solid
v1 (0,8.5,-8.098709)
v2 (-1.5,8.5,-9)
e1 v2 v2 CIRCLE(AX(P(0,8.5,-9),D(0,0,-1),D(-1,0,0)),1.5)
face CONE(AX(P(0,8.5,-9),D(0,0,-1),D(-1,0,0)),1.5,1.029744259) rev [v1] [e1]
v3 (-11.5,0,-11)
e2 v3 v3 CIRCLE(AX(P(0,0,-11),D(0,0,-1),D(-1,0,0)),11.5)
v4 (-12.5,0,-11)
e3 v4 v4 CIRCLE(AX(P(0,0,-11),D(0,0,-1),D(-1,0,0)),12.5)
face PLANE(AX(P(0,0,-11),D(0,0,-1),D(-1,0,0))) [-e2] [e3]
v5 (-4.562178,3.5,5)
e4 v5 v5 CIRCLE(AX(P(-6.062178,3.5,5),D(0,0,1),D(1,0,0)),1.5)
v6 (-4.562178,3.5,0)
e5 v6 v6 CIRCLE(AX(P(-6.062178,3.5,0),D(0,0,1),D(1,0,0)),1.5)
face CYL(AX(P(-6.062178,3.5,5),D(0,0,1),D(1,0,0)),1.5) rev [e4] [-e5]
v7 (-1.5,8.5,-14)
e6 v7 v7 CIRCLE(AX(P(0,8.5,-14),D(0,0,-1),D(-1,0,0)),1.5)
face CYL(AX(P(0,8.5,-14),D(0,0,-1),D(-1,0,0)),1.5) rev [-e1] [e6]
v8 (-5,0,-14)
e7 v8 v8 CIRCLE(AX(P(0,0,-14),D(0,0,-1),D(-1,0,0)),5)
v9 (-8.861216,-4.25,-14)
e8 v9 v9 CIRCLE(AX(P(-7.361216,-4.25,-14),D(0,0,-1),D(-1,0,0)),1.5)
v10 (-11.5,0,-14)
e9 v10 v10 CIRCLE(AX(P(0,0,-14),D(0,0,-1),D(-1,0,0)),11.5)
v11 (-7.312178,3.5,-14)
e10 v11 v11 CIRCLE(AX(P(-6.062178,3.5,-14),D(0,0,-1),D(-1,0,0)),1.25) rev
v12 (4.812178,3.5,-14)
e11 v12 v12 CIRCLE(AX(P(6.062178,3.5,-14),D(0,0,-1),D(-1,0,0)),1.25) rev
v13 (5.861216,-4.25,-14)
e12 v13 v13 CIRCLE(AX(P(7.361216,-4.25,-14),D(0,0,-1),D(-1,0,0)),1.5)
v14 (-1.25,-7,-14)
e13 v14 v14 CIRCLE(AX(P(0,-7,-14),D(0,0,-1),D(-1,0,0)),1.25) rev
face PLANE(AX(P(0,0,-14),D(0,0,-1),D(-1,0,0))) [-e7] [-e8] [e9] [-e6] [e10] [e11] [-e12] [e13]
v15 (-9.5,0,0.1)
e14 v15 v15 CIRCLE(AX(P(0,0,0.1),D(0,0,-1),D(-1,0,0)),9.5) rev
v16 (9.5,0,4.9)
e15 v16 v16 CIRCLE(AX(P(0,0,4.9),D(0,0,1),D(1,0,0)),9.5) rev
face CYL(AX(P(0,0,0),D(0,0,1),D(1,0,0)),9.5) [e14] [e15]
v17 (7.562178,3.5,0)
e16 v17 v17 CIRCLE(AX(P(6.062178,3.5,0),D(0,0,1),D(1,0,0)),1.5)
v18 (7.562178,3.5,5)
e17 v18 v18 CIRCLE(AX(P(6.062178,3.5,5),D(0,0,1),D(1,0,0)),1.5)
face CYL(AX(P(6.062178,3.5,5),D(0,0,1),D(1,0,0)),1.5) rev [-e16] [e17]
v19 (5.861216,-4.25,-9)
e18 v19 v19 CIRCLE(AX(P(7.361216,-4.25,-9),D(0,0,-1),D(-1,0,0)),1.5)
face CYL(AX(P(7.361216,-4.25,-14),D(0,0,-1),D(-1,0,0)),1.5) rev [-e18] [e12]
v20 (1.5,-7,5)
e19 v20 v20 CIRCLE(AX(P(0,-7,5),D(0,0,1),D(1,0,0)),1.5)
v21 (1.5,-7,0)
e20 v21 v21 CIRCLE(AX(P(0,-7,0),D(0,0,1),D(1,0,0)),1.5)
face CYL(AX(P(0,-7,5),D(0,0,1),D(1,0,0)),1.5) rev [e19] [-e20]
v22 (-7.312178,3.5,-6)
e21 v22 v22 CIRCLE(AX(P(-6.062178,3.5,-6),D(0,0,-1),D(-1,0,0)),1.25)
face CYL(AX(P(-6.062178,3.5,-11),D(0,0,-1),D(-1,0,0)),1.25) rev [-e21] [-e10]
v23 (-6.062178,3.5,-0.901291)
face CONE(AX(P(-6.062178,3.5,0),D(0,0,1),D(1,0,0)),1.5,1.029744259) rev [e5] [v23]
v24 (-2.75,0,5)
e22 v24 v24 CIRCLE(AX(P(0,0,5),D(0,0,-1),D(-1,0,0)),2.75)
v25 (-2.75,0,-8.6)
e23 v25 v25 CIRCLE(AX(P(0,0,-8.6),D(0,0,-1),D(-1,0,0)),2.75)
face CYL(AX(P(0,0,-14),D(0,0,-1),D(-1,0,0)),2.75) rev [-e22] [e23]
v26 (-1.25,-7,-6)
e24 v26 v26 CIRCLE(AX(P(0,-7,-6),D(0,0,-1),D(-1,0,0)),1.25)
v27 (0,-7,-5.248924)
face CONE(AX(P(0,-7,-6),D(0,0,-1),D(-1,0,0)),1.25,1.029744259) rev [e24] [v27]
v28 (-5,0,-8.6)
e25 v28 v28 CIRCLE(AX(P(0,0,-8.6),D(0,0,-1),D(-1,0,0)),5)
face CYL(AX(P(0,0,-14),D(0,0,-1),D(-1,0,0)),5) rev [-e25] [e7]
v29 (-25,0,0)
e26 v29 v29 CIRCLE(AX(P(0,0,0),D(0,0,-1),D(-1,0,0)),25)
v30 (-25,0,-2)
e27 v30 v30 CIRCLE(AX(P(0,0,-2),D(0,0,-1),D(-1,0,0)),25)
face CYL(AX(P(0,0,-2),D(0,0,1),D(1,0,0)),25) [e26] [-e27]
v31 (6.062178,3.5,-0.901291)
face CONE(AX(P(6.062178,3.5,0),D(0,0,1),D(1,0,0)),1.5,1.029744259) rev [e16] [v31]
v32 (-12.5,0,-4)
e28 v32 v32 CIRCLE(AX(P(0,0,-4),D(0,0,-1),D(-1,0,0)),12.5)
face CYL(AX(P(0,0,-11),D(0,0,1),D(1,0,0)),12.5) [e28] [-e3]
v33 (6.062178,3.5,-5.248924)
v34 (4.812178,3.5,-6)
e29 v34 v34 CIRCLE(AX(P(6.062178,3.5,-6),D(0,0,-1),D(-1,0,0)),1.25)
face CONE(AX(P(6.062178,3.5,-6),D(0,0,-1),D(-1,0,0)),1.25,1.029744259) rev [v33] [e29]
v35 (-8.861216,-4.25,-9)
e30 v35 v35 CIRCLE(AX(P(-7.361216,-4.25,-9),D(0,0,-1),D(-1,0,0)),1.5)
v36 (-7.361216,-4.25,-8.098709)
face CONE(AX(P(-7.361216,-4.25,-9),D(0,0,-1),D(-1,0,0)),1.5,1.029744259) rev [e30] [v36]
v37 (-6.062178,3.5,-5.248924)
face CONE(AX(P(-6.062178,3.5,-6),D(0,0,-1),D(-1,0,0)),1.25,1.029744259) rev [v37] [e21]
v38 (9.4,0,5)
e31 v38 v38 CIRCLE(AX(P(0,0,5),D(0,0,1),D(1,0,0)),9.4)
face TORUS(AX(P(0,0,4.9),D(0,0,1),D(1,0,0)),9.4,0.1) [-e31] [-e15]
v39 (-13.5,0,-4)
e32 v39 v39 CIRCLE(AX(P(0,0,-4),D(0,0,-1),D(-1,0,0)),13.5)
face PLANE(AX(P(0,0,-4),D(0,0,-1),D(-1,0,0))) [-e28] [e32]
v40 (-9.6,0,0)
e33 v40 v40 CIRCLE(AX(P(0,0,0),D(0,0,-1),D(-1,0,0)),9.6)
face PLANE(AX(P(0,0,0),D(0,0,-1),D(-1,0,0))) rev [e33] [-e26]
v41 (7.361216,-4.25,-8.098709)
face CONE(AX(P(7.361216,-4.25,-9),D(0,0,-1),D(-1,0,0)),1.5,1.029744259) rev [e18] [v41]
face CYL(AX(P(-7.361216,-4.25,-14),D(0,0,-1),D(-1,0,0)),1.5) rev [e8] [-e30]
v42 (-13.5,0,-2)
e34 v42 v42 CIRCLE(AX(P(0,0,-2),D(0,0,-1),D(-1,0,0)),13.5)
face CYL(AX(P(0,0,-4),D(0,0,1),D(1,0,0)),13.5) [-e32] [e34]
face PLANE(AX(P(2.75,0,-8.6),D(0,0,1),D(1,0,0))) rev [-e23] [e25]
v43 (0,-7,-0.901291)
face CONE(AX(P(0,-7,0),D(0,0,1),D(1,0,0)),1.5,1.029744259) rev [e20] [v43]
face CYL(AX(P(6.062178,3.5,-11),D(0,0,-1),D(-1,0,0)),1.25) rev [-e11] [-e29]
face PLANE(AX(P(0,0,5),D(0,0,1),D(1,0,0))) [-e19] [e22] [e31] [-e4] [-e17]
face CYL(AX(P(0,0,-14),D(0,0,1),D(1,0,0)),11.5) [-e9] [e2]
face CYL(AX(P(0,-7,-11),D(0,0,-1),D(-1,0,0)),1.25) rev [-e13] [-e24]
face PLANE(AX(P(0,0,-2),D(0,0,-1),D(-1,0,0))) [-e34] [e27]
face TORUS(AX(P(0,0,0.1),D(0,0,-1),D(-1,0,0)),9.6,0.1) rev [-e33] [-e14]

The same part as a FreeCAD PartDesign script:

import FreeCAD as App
import Part
import Sketcher

V = App.Vector
Q = App.Units.Quantity


def edges_at(feature, points):
    """Names of the edges that pass closest to the given points."""
    edges = feature.Shape.Edges
    near = lambda p: min(range(len(edges)), key=lambda i: edges[i].distToShape(Part.Vertex(*p))[0])
    return sorted({f"Edge{near(p) + 1}" for p in points})


def add_polygon(sketch, points):
    """Adds a closed chain of lines whose ends are joined by coincident constraints."""
    first, n = sketch.GeometryCount, len(points)
    for a, b in zip(points, points[1:] + points[:1]):
        sketch.addGeometry(Part.LineSegment(App.Vector(*a, 0), App.Vector(*b, 0)), False)
    for i in range(n):
        sketch.addConstraint(Sketcher.Constraint("Coincident", first + i, 2, first + (i + 1) % n, 1))

doc = App.newDocument("Part")
body = doc.addObject("PartDesign::Body", "Body")

# Sketch on XY plane
sketch1 = body.newObject("Sketcher::SketchObject", "Sketch")
sketch1.AttachmentSupport = (doc.getObject("XY_Plane"), [""])
sketch1.MapMode = "FlatFace"
sketch1.addGeometry([
    Part.Circle(V(0, 0, 0), V(0, 0, 1), 25),
    Part.Circle(V(0, 0, 0), V(0, 0, 1), 10),
], False)
sketch1.addConstraint([
    Sketcher.Constraint("Coincident", 0, 3, -1, 1),
    Sketcher.Constraint("Coincident", 1, 3, -1, 1),
    Sketcher.Constraint("Diameter", 0, 50.0),
    Sketcher.Constraint("Diameter", 1, 20.0),
])
pad1 = body.newObject("PartDesign::Pad", "Pad")
pad1.Profile = sketch1
pad1.Length = 2
pad1.Reversed = True

# Sketch on XY plane
sketch2 = body.newObject("Sketcher::SketchObject", "Sketch001")
sketch2.AttachmentSupport = (doc.getObject("XY_Plane"), [""])
sketch2.MapMode = "FlatFace"
sketch2.AttachmentOffset = App.Placement(V(0, 0, -2), App.Rotation())
sketch2.addGeometry(Part.Circle(V(0, 0, 0), V(0, 0, 1), 14), False)
sketch2.addConstraint([
    Sketcher.Constraint("Coincident", 0, 3, -1, 1),
    Sketcher.Constraint("Diameter", 0, 27.0),
])
pad2 = body.newObject("PartDesign::Pad", "Pad001")
pad2.Profile = sketch2
pad2.Length = 2
pad2.Reversed = True

# Sketch on XY plane
sketch3 = body.newObject("Sketcher::SketchObject", "Sketch002")
sketch3.AttachmentSupport = (doc.getObject("XY_Plane"), [""])
sketch3.MapMode = "FlatFace"
sketch3.AttachmentOffset = App.Placement(V(0, 0, -4), App.Rotation())
sketch3.addGeometry(Part.Circle(V(0, 0, 0), V(0, 0, 1), 12), False)
sketch3.addConstraint([
    Sketcher.Constraint("Coincident", 0, 3, -1, 1),
    Sketcher.Constraint("Diameter", 0, 25.0),
])
pad3 = body.newObject("PartDesign::Pad", "Pad002")
pad3.Profile = sketch3
pad3.Length = 7
pad3.Reversed = True

# Sketch on XY plane
sketch4 = body.newObject("Sketcher::SketchObject", "Sketch003")
sketch4.AttachmentSupport = (doc.getObject("XY_Plane"), [""])
sketch4.MapMode = "FlatFace"
sketch4.AttachmentOffset = App.Placement(V(0, 0, -11), App.Rotation())
sketch4.addGeometry(Part.Circle(V(0, 4, 0), V(0, 0, 1), 1.7), False)
sketch4.addConstraint([
    Sketcher.Constraint("PointOnObject", 0, 3, -2),
    Sketcher.Constraint("Diameter", 0, 3.4),
    Sketcher.Constraint("DistanceY", -1, 1, 0, 3, 4.0),
])
doc.recompute()
hole = body.newObject("PartDesign::Hole", "Hole")
hole.Profile = sketch4
hole.ThreadType = "None"
hole.Diameter = 3.4
hole.DepthType = "ThroughAll"
hole.HoleCutType = "Counterbore"
hole.HoleCutDiameter = 6.5
hole.HoleCutDepth = 3.4
hole.Reversed = True
doc.recompute()

polarpattern = body.newObject("PartDesign::PolarPattern", "PolarPattern")
polarpattern.Originals = [hole]
polarpattern.Axis = (doc.getObject("Z_Axis"), [""])
polarpattern.Angle = 360
polarpattern.Occurrences = 3
body.Tip = polarpattern

# Sketch on YZ plane
sketch5 = body.newObject("Sketcher::SketchObject", "Sketch004")
sketch5.AttachmentSupport = (doc.getObject("YZ_Plane"), [""])
sketch5.MapMode = "FlatFace"
add_polygon(sketch5, [(-7, -5.2), (-7, -11), (-5.8, -11), (-5.8, -6)])  # lines 0-3
sketch5.addGeometry(Part.LineSegment(V(-7, -11, 0), V(-7, -5.2, 0)), True)  # axis
sketch5.addConstraint([
    Sketcher.Constraint("Vertical", 0),
    Sketcher.Constraint("Horizontal", 1),
    Sketcher.Constraint("Vertical", 2),
    Sketcher.Constraint("Vertical", 4),
    Sketcher.Constraint("Coincident", 4, 1, 0, 2),
    Sketcher.Constraint("Equal", 0, 4),
    Sketcher.Constraint("DistanceY", 2, 1, 2, 2, 5.0),
    Sketcher.Constraint("Angle", 3, Q("149 deg")),
    Sketcher.Constraint("DistanceX", 0, 2, -1, 1, 7.0),
    Sketcher.Constraint("DistanceY", 0, 2, -1, 1, 11.0),
    Sketcher.Constraint("DistanceX", 1, 1, 1, 2, 1.25),
])
groove = body.newObject("PartDesign::Groove", "Groove")
groove.Profile = sketch5
groove.ReferenceAxis = (sketch5, ["Axis0"])
groove.Angle = 360
doc.recompute()

polarpattern2 = body.newObject("PartDesign::PolarPattern", "PolarPattern001")
polarpattern2.Originals = [groove]
polarpattern2.Axis = (doc.getObject("Z_Axis"), [""])
polarpattern2.Angle = 360
polarpattern2.Occurrences = 3
body.Tip = polarpattern2

# Sketch on XY plane
sketch6 = body.newObject("Sketcher::SketchObject", "Sketch005")
sketch6.AttachmentSupport = (doc.getObject("XY_Plane"), [""])
sketch6.MapMode = "FlatFace"
sketch6.AttachmentOffset = App.Placement(V(0, 0, -14), App.Rotation())
sketch6.addGeometry([
    Part.Circle(V(0, 0, 0), V(0, 0, 1), 11.5),  # 0
    Part.Circle(V(3.5, -2, 0), V(0, 0, 1), 3.2),  # 1
    Part.Circle(V(0, -7, 0), V(0, 0, 1), 1.2),  # 2
    Part.Circle(V(-3.5, -2, 0), V(0, 0, 1), 3.2),  # 3
    Part.Circle(V(6.1, 3.5, 0), V(0, 0, 1), 1.2),  # 4
    Part.Circle(V(0, 4, 0), V(0, 0, 1), 3.2),  # 5
    Part.Circle(V(-6.1, 3.5, 0), V(0, 0, 1), 1.2),  # 6
], False)
sketch6.addConstraint([
    Sketcher.Constraint("Coincident", 0, 3, -1, 1),
    Sketcher.Constraint("Equal", 1, 3),
    Sketcher.Constraint("Equal", 2, 4),
    Sketcher.Constraint("Equal", 3, 5),
    Sketcher.Constraint("Equal", 4, 6),
    Sketcher.Constraint("Symmetric", 1, 3, 3, 3, -2),
    Sketcher.Constraint("Symmetric", 4, 3, 6, 3, -2),
    Sketcher.Constraint("PointOnObject", 2, 3, -2),
    Sketcher.Constraint("PointOnObject", 5, 3, -2),
    Sketcher.Constraint("Diameter", 0, 23.0),
    Sketcher.Constraint("Diameter", 1, 6.5),
    Sketcher.Constraint("Diameter", 2, 2.5),
    Sketcher.Constraint("DistanceY", 1, 3, -1, 1, 2.0),
    Sketcher.Constraint("DistanceY", 2, 3, -1, 1, 7.0),
    Sketcher.Constraint("DistanceY", -1, 1, 5, 3, 4.0),
    Sketcher.Constraint("DistanceY", -1, 1, 4, 3, 3.5),
    Sketcher.Constraint("DistanceX", -1, 1, 1, 3, 3.464102),
    Sketcher.Constraint("DistanceX", 3, 3, 4, 3, 9.526279),
])
pad4 = body.newObject("PartDesign::Pad", "Pad003")
pad4.Profile = sketch6
pad4.Length = 3

# Sketch on XY plane
sketch7 = body.newObject("Sketcher::SketchObject", "Sketch006")
sketch7.AttachmentSupport = (doc.getObject("XY_Plane"), [""])
sketch7.MapMode = "FlatFace"
sketch7.AttachmentOffset = App.Placement(V(0, 0, 5), App.Rotation())
sketch7.addGeometry([
    Part.Circle(V(0, 0, 0), V(0, 0, 1), 10),
    Part.Circle(V(0, 4, 0), V(0, 0, 1), 1.7),
    Part.Circle(V(3.5, -2, 0), V(0, 0, 1), 1.7),
    Part.Circle(V(-3.5, -2, 0), V(0, 0, 1), 1.7),
], False)
sketch7.addConstraint([
    Sketcher.Constraint("Coincident", 0, 3, -1, 1),
    Sketcher.Constraint("Equal", 1, 2),
    Sketcher.Constraint("Equal", 2, 3),
    Sketcher.Constraint("Symmetric", 2, 3, 3, 3, -2),
    Sketcher.Constraint("PointOnObject", 1, 3, -2),
    Sketcher.Constraint("Diameter", 0, 20.0),
    Sketcher.Constraint("Diameter", 1, 3.4),
    Sketcher.Constraint("DistanceY", -1, 1, 1, 3, 4.0),
    Sketcher.Constraint("DistanceY", 2, 3, -1, 1, 2.0),
    Sketcher.Constraint("DistanceX", -1, 1, 2, 3, 3.464102),
])
pad5 = body.newObject("PartDesign::Pad", "Pad004")
pad5.Profile = sketch7
pad5.Length = 7
pad5.Reversed = True

# Sketch on XY plane
sketch8 = body.newObject("Sketcher::SketchObject", "Sketch007")
sketch8.AttachmentSupport = (doc.getObject("XY_Plane"), [""])
sketch8.MapMode = "FlatFace"
sketch8.AttachmentOffset = App.Placement(V(0, 0, 5), App.Rotation())
sketch8.addGeometry([
    Part.Circle(V(0, 0, 0), V(0, 0, 1), 10),
    Part.Circle(V(0, 0, 0), V(0, 0, 1), 10),
], False)
sketch8.addConstraint([
    Sketcher.Constraint("Coincident", 0, 3, -1, 1),
    Sketcher.Constraint("Coincident", 1, 3, -1, 1),
    Sketcher.Constraint("Diameter", 0, 20.0),
    Sketcher.Constraint("Diameter", 1, 19.0),
])
pocket1 = body.newObject("PartDesign::Pocket", "Pocket")
pocket1.Profile = sketch8
pocket1.Length = 5
doc.recompute()

fillet = body.newObject("PartDesign::Fillet", "Fillet")
fillet.Base = (pocket1, edges_at(pocket1, [(-9.5, 0, 0), (-9.5, 0, 5)]))
fillet.Radius = 0.1

# Sketch on YZ plane
sketch9 = body.newObject("Sketcher::SketchObject", "Sketch008")
sketch9.AttachmentSupport = (doc.getObject("YZ_Plane"), [""])
sketch9.MapMode = "FlatFace"
add_polygon(sketch9, [(-7, -0.9), (-7, 5), (-8.5, 5), (-8.5, 0)])  # lines 0-3
sketch9.addGeometry(Part.LineSegment(V(-7, 5, 0), V(-7, -0.9, 0)), True)  # axis
sketch9.addConstraint([
    Sketcher.Constraint("Vertical", 0),
    Sketcher.Constraint("Horizontal", 1),
    Sketcher.Constraint("Vertical", 2),
    Sketcher.Constraint("Vertical", 4),
    Sketcher.Constraint("Coincident", 4, 1, 0, 2),
    Sketcher.Constraint("PointOnObject", 2, 2, -1),
    Sketcher.Constraint("Equal", 0, 4),
    Sketcher.Constraint("DistanceY", 2, 2, 2, 1, 5.0),
    Sketcher.Constraint("Angle", 3, Q("-31 deg")),
    Sketcher.Constraint("DistanceX", 1, 2, 1, 1, 1.5),
    Sketcher.Constraint("DistanceX", 0, 2, -1, 1, 7.0),
])
groove2 = body.newObject("PartDesign::Groove", "Groove001")
groove2.Profile = sketch9
groove2.ReferenceAxis = (sketch9, ["Axis0"])
groove2.Angle = 360
doc.recompute()

polarpattern3 = body.newObject("PartDesign::PolarPattern", "PolarPattern002")
polarpattern3.Originals = [groove2]
polarpattern3.Axis = (doc.getObject("Z_Axis"), [""])
polarpattern3.Angle = 360
polarpattern3.Occurrences = 3
body.Tip = polarpattern3

# Sketch on XY plane
sketch10 = body.newObject("Sketcher::SketchObject", "Sketch009")
sketch10.AttachmentSupport = (doc.getObject("XY_Plane"), [""])
sketch10.MapMode = "FlatFace"
sketch10.AttachmentOffset = App.Placement(V(0, 0, -14), App.Rotation())
sketch10.addGeometry([
    Part.Circle(V(0, 4, 0), V(0, 0, 1), 3.2),
    Part.Circle(V(3.5, -2, 0), V(0, 0, 1), 3.2),
    Part.Circle(V(-3.5, -2, 0), V(0, 0, 1), 3.2),
], False)
sketch10.addConstraint([
    Sketcher.Constraint("Equal", 0, 1),
    Sketcher.Constraint("Equal", 1, 2),
    Sketcher.Constraint("Symmetric", 1, 3, 2, 3, -2),
    Sketcher.Constraint("PointOnObject", 0, 3, -2),
    Sketcher.Constraint("Diameter", 0, 6.5),
    Sketcher.Constraint("DistanceY", -1, 1, 0, 3, 4.0),
    Sketcher.Constraint("DistanceY", 1, 3, -1, 1, 2.0),
    Sketcher.Constraint("DistanceX", -1, 1, 1, 3, 3.464102),
])
pad6 = body.newObject("PartDesign::Pad", "Pad005")
pad6.Profile = sketch10
pad6.Length = 19

# Sketch on XY plane
sketch11 = body.newObject("Sketcher::SketchObject", "Sketch010")
sketch11.AttachmentSupport = (doc.getObject("XY_Plane"), [""])
sketch11.MapMode = "FlatFace"
sketch11.AttachmentOffset = App.Placement(V(0, 0, -14), App.Rotation())
sketch11.addGeometry(Part.Circle(V(0, 0, 0), V(0, 0, 1), 2.8), False)
sketch11.addConstraint([
    Sketcher.Constraint("Coincident", 0, 3, -1, 1),
    Sketcher.Constraint("Diameter", 0, 5.5),
])
doc.recompute()
hole2 = body.newObject("PartDesign::Hole", "Hole001")
hole2.Profile = sketch11
hole2.ThreadType = "None"
hole2.Diameter = 5.5
hole2.DepthType = "ThroughAll"
hole2.HoleCutType = "Counterbore"
hole2.HoleCutDiameter = 10
hole2.HoleCutDepth = 5.4
hole2.Reversed = True

# Sketch on YZ plane
sketch12 = body.newObject("Sketcher::SketchObject", "Sketch011")
sketch12.AttachmentSupport = (doc.getObject("YZ_Plane"), [""])
sketch12.MapMode = "FlatFace"
add_polygon(sketch12, [(8.5, -8.1), (8.5, -14), (10, -14), (10, -9)])  # lines 0-3
sketch12.addGeometry(Part.LineSegment(V(8.5, -14, 0), V(8.5, -8.1, 0)), True)  # axis
sketch12.addConstraint([
    Sketcher.Constraint("Vertical", 0),
    Sketcher.Constraint("Horizontal", 1),
    Sketcher.Constraint("Vertical", 2),
    Sketcher.Constraint("Vertical", 4),
    Sketcher.Constraint("Coincident", 4, 1, 0, 2),
    Sketcher.Constraint("Equal", 0, 4),
    Sketcher.Constraint("DistanceY", 2, 1, 2, 2, 5.0),
    Sketcher.Constraint("Angle", 3, Q("149 deg")),
    Sketcher.Constraint("DistanceX", 1, 1, 1, 2, 1.5),
    Sketcher.Constraint("DistanceY", 0, 2, -1, 1, 14.0),
    Sketcher.Constraint("DistanceX", -1, 1, 1, 2, 10.0),
])
groove3 = body.newObject("PartDesign::Groove", "Groove002")
groove3.Profile = sketch12
groove3.ReferenceAxis = (sketch12, ["Axis0"])
groove3.Angle = 360
doc.recompute()

polarpattern4 = body.newObject("PartDesign::PolarPattern", "PolarPattern003")
polarpattern4.Originals = [groove3]
polarpattern4.Axis = (doc.getObject("Z_Axis"), [""])
polarpattern4.Angle = 360
polarpattern4.Occurrences = 3
body.Tip = polarpattern4

doc.recompute()
